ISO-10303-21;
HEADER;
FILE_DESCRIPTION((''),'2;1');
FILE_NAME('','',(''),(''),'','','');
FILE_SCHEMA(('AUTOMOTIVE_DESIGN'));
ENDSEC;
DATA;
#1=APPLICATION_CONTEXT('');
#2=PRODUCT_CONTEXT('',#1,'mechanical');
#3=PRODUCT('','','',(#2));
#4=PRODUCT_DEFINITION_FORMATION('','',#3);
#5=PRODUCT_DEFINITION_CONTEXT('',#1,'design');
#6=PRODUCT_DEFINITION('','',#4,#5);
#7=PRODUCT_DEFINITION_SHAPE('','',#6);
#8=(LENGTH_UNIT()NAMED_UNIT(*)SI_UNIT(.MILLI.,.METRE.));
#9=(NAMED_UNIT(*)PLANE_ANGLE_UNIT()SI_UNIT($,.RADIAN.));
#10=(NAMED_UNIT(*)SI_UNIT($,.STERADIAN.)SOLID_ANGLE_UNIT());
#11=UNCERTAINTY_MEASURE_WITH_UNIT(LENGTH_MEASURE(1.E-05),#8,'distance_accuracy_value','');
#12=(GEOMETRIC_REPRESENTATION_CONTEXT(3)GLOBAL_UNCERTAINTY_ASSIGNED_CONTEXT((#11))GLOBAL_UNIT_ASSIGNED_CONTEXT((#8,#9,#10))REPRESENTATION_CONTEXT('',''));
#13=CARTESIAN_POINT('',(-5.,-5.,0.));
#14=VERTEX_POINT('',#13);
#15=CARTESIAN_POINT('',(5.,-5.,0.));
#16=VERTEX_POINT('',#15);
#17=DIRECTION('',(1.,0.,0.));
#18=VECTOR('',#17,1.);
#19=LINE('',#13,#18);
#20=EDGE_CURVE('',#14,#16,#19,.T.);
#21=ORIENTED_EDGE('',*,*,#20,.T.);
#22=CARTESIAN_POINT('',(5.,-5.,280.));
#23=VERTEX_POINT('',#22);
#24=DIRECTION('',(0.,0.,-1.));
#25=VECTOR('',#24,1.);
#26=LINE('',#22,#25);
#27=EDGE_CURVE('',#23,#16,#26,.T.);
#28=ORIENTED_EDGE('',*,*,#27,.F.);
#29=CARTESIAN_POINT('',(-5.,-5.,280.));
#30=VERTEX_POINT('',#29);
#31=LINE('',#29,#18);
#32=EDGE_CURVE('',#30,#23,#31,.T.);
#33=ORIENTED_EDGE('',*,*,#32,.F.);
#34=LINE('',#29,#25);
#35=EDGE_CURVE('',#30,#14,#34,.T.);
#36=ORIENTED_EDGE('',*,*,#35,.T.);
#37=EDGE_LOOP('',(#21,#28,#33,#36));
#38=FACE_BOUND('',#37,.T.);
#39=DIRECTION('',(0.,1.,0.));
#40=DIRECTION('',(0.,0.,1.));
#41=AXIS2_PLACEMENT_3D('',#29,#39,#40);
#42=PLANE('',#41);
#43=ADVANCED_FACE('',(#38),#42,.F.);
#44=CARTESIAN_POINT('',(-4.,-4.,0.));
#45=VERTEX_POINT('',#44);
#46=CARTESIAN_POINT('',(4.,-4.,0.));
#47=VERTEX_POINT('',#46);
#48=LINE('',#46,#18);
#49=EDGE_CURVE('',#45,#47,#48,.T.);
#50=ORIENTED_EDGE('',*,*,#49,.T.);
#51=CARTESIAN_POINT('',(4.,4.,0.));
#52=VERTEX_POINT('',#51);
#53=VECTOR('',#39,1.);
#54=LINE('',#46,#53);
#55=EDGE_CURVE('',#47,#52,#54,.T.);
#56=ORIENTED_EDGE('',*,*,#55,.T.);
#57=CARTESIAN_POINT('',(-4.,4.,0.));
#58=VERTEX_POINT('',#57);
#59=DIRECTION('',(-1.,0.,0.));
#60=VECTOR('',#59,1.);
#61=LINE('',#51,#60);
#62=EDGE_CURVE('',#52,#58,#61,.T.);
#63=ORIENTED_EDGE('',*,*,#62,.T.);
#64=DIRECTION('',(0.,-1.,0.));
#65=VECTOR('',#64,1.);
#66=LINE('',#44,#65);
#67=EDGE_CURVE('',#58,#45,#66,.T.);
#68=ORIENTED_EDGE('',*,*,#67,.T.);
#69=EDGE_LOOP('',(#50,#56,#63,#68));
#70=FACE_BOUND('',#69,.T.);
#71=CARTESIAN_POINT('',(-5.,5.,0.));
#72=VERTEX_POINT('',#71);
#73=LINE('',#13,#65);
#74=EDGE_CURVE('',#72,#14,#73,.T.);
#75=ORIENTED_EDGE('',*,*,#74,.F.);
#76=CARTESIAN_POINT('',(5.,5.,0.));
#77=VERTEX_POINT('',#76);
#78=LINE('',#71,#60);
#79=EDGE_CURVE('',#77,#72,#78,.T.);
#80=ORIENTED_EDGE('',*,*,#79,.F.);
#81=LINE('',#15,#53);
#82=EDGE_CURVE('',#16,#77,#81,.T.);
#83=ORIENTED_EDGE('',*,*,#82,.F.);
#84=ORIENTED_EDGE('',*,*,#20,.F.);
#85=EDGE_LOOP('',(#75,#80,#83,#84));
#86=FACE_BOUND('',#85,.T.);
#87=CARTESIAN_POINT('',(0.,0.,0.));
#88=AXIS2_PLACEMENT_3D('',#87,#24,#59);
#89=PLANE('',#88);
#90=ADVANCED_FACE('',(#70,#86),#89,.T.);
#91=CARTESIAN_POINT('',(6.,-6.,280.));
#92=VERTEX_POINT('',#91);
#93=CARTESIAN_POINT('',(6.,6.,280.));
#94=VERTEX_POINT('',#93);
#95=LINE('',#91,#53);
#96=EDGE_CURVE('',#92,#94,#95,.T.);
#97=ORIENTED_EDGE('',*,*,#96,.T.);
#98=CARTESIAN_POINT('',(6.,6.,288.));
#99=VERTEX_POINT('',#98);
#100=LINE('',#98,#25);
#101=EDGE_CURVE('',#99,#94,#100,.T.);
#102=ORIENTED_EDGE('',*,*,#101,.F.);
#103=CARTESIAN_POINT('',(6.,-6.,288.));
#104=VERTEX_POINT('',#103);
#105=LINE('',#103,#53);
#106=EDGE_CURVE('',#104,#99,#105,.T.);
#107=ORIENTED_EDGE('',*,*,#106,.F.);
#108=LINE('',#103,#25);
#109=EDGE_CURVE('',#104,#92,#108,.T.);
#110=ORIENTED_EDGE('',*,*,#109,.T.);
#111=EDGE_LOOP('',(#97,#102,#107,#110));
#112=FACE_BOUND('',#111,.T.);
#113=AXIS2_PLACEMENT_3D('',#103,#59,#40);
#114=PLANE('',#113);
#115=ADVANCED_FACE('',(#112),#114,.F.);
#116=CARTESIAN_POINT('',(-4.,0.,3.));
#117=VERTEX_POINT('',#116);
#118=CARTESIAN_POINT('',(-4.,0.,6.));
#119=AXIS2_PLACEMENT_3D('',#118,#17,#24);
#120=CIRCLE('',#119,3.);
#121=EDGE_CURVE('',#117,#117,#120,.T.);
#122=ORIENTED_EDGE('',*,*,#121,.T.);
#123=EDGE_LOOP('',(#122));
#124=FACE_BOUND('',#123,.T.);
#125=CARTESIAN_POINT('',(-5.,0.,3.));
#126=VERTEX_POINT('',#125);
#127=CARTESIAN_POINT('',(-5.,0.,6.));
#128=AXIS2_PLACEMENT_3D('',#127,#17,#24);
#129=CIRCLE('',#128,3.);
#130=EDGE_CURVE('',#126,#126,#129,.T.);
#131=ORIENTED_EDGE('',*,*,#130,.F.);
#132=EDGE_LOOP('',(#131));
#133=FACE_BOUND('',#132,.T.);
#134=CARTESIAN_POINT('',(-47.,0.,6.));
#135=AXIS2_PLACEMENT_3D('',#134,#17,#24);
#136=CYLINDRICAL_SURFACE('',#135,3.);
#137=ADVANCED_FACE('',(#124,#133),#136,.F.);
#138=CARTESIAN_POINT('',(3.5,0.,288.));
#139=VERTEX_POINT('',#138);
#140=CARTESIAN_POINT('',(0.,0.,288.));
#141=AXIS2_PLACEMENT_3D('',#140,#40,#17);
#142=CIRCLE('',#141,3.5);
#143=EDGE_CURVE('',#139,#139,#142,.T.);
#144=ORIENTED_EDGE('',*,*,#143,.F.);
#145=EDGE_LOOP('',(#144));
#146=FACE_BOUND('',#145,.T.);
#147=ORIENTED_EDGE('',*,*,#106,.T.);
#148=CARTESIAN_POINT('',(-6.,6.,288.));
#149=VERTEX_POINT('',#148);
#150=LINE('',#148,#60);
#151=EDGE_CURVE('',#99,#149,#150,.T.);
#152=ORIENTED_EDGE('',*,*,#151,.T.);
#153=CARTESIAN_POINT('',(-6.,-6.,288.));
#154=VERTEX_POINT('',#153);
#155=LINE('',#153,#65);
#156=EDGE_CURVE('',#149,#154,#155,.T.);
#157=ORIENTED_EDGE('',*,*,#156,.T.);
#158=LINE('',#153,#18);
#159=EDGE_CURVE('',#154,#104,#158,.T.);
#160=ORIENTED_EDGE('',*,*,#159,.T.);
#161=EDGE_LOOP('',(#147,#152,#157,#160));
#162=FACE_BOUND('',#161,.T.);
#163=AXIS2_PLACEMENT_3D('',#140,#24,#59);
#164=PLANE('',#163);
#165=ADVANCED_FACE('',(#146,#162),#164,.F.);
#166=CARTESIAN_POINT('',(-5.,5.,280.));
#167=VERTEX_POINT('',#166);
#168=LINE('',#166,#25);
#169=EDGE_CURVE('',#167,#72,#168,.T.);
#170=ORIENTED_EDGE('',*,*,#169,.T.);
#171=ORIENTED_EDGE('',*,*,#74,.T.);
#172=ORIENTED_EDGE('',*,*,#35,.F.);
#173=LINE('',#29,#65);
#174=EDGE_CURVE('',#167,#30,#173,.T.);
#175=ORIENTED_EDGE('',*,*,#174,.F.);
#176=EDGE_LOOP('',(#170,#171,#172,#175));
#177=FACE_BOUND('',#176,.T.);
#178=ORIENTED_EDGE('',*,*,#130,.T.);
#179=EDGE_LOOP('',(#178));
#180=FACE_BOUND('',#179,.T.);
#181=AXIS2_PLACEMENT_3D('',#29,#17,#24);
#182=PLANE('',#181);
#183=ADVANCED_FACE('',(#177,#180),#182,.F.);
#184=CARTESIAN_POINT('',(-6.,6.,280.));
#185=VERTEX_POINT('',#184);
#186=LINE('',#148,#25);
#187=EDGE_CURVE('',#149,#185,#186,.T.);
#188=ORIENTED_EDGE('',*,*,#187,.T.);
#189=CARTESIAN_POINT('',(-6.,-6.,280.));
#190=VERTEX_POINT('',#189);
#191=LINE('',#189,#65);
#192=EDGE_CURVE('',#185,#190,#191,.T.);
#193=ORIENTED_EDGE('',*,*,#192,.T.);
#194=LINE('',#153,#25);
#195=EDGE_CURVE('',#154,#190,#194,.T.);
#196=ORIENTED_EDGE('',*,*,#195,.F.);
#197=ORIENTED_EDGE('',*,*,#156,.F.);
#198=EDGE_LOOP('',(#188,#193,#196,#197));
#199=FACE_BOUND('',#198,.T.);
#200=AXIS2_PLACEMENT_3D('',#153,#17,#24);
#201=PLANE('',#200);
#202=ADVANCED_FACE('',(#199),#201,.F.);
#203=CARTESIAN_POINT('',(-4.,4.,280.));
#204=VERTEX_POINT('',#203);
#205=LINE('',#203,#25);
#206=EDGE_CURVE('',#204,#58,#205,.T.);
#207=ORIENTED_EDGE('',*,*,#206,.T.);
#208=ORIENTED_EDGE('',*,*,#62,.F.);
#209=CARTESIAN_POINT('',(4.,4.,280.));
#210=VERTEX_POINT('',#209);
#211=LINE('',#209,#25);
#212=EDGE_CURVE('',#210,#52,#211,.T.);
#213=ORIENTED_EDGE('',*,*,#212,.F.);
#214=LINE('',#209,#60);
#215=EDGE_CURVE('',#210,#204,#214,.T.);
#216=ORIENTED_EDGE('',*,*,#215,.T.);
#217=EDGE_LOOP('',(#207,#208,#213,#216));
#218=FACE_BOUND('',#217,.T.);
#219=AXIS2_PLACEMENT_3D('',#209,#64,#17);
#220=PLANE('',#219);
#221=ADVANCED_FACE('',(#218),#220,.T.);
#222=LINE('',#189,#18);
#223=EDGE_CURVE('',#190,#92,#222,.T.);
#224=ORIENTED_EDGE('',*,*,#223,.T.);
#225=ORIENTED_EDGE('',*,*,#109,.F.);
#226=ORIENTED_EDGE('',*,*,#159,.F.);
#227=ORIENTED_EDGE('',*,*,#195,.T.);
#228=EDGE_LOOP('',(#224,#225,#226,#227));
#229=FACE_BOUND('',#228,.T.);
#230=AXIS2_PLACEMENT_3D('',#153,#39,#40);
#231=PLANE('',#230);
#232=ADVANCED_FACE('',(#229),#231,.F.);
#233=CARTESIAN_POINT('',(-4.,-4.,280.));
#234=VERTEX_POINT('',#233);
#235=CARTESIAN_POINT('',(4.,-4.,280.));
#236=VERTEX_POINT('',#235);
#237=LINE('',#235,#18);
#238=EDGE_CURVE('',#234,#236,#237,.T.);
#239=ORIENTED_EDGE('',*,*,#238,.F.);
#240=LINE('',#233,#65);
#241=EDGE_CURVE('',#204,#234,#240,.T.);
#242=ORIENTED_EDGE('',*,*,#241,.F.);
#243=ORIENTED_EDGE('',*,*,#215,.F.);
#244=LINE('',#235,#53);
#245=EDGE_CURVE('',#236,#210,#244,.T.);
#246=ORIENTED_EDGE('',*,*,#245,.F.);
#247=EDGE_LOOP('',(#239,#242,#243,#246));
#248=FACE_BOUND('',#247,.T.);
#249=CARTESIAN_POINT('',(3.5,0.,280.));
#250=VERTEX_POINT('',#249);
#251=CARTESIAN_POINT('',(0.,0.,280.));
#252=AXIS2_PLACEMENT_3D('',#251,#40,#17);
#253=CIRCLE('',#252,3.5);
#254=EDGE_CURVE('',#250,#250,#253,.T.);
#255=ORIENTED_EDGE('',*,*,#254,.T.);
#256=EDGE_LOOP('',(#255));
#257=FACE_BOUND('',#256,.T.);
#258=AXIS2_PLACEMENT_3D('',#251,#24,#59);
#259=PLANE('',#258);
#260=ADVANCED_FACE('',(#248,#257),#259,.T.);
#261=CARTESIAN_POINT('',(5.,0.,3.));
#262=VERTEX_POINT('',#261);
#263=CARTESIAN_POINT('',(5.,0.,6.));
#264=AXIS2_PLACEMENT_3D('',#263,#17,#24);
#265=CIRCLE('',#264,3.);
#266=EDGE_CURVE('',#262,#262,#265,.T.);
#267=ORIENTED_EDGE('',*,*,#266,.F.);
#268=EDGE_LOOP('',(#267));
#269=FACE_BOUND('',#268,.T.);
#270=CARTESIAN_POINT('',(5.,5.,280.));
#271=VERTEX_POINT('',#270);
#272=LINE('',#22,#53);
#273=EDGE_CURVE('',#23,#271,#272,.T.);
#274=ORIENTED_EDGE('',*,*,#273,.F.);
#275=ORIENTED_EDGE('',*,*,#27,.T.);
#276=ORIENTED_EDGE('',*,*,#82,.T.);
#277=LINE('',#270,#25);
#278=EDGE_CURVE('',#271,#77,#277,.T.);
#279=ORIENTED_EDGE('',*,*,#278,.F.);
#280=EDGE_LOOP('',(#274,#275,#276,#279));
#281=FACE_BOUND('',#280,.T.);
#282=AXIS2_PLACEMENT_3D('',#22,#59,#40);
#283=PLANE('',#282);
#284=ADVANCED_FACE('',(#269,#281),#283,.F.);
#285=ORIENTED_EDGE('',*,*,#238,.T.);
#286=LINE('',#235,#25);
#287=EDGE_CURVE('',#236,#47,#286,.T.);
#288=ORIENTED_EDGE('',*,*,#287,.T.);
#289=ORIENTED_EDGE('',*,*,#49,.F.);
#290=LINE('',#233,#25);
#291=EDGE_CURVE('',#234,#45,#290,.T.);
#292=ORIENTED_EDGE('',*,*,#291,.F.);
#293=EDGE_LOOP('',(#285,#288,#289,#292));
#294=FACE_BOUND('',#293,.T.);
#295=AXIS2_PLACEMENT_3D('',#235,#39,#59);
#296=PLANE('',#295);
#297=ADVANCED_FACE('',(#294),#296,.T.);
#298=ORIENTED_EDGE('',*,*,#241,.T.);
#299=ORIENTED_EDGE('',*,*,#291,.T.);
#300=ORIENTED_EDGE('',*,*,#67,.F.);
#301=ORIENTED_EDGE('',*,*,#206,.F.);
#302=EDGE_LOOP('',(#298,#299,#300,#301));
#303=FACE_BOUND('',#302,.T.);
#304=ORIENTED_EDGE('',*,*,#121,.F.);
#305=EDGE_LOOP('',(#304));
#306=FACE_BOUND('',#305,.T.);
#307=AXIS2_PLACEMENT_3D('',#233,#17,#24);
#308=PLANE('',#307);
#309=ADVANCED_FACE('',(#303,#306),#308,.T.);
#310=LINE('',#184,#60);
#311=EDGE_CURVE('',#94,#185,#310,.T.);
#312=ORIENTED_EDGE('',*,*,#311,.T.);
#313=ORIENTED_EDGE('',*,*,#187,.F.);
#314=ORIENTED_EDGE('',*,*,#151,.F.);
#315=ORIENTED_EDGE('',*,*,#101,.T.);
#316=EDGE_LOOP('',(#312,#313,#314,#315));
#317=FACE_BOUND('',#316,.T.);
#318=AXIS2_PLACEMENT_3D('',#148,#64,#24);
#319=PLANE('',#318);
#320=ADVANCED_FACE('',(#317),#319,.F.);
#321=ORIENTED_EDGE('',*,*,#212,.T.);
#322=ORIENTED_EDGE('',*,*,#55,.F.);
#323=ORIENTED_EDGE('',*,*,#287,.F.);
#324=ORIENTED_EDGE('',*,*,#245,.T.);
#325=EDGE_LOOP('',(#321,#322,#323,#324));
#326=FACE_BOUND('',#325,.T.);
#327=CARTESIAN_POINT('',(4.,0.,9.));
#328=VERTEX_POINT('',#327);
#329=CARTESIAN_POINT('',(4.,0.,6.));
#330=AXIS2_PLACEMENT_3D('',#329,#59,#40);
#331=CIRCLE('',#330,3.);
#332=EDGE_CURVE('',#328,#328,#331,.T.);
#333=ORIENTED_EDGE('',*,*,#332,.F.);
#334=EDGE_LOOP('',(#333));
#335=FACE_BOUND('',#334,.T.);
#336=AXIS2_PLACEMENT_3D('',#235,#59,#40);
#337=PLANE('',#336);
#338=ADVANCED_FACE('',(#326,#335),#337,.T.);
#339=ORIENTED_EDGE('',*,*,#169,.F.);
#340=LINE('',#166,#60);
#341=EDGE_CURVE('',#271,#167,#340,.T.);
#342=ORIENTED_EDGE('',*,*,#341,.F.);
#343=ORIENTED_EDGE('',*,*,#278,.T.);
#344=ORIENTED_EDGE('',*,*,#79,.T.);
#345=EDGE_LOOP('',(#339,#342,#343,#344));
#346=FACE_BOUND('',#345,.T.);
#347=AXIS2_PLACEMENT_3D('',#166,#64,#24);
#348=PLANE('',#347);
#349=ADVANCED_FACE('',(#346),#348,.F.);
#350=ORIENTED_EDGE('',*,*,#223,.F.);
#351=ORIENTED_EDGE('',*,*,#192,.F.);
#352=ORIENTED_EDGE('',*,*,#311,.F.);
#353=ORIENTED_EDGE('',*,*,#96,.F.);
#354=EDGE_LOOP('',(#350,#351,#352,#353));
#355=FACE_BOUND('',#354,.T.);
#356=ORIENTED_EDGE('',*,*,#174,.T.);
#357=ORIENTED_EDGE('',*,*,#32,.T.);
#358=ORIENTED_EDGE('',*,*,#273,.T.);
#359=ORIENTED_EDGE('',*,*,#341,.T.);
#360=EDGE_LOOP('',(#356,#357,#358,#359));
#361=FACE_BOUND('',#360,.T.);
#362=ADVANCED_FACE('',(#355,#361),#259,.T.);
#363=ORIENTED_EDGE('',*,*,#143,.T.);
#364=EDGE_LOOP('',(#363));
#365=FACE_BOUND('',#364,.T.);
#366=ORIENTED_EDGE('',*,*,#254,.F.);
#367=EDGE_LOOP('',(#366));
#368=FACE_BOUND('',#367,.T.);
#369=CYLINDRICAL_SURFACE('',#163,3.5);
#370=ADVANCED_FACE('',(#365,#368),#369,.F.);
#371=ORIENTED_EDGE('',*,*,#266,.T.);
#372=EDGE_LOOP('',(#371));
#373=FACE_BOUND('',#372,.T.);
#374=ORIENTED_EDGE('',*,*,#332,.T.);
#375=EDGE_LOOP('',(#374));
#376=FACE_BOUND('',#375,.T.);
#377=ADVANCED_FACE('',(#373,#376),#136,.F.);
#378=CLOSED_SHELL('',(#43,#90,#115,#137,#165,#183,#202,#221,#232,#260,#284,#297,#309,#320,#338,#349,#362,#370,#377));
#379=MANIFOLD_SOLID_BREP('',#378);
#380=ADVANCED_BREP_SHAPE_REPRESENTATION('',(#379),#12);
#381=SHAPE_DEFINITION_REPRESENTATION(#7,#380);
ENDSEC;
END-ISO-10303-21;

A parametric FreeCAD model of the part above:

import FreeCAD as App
import Part
import Sketcher

V = App.Vector


def add_polygon(sketch, points):
    """Adds a closed chain of lines whose ends are joined by coincident constraints."""
    first, n = sketch.GeometryCount, len(points)
    for a, b in zip(points, points[1:] + points[:1]):
        sketch.addGeometry(Part.LineSegment(App.Vector(*a, 0), App.Vector(*b, 0)), False)
    for i in range(n):
        sketch.addConstraint(Sketcher.Constraint("Coincident", first + i, 2, first + (i + 1) % n, 1))

doc = App.newDocument("Part")
body = doc.addObject("PartDesign::Body", "Body")

# Sketch on XY plane
sketch1 = body.newObject("Sketcher::SketchObject", "Sketch")
sketch1.AttachmentSupport = (doc.getObject("XY_Plane"), [""])
sketch1.MapMode = "FlatFace"
add_polygon(sketch1, [(-5, 5), (-5, -5), (5, -5), (5, 5)])  # lines 0-3
add_polygon(sketch1, [(4, -4), (-4, -4), (-4, 4), (4, 4)])  # lines 4-7
sketch1.addConstraint([
    Sketcher.Constraint("Vertical", 0),
    Sketcher.Constraint("Horizontal", 1),
    Sketcher.Constraint("Vertical", 2),
    Sketcher.Constraint("Horizontal", 3),
    Sketcher.Constraint("Horizontal", 4),
    Sketcher.Constraint("Vertical", 5),
    Sketcher.Constraint("Horizontal", 6),
    Sketcher.Constraint("Vertical", 7),
    Sketcher.Constraint("Symmetric", 0, 2, 2, 2, -1, 1),
    Sketcher.Constraint("Symmetric", 4, 2, 6, 2, -1, 1),
    Sketcher.Constraint("Equal", 3, 0),
    Sketcher.Constraint("Equal", 6, 5),
    Sketcher.Constraint("DistanceX", 1, 1, 1, 2, 10.0),
    Sketcher.Constraint("DistanceX", 4, 2, 4, 1, 8.0),
])
pad1 = body.newObject("PartDesign::Pad", "Pad")
pad1.Profile = sketch1
pad1.Length = 280

# Sketch on YZ plane
sketch2 = body.newObject("Sketcher::SketchObject", "Sketch001")
sketch2.AttachmentSupport = (doc.getObject("YZ_Plane"), [""])
sketch2.MapMode = "FlatFace"
sketch2.AttachmentOffset = App.Placement(V(0, 0, 5), App.Rotation())
sketch2.addGeometry(Part.Circle(V(0, 6, 0), V(0, 0, 1), 3), False)
sketch2.addConstraint([
    Sketcher.Constraint("PointOnObject", 0, 3, -2),
    Sketcher.Constraint("Diameter", 0, 6.0),
    Sketcher.Constraint("DistanceY", -1, 1, 0, 3, 6.0),
])
pocket1 = body.newObject("PartDesign::Pocket", "Pocket")
pocket1.Profile = sketch2
pocket1.Length = 52

# Sketch on XY plane
sketch3 = body.newObject("Sketcher::SketchObject", "Sketch002")
sketch3.AttachmentSupport = (doc.getObject("XY_Plane"), [""])
sketch3.MapMode = "FlatFace"
sketch3.AttachmentOffset = App.Placement(V(0, 0, 280), App.Rotation())
add_polygon(sketch3, [(-6, 6), (-6, -6), (6, -6), (6, 6)])  # lines 0-3
sketch3.addGeometry(Part.Circle(V(0, 0, 0), V(0, 0, 1), 3.5), False)  # 4
sketch3.addConstraint([
    Sketcher.Constraint("Vertical", 0),
    Sketcher.Constraint("Horizontal", 1),
    Sketcher.Constraint("Vertical", 2),
    Sketcher.Constraint("Horizontal", 3),
    Sketcher.Constraint("Coincident", 4, 3, -1, 1),
    Sketcher.Constraint("Symmetric", 0, 2, 2, 2, -1, 1),
    Sketcher.Constraint("Equal", 3, 0),
    Sketcher.Constraint("Diameter", 4, 7.0),
    Sketcher.Constraint("DistanceX", 1, 1, 1, 2, 12.0),
])
pad2 = body.newObject("PartDesign::Pad", "Pad001")
pad2.Profile = sketch3
pad2.Length = 8

doc.recompute()
